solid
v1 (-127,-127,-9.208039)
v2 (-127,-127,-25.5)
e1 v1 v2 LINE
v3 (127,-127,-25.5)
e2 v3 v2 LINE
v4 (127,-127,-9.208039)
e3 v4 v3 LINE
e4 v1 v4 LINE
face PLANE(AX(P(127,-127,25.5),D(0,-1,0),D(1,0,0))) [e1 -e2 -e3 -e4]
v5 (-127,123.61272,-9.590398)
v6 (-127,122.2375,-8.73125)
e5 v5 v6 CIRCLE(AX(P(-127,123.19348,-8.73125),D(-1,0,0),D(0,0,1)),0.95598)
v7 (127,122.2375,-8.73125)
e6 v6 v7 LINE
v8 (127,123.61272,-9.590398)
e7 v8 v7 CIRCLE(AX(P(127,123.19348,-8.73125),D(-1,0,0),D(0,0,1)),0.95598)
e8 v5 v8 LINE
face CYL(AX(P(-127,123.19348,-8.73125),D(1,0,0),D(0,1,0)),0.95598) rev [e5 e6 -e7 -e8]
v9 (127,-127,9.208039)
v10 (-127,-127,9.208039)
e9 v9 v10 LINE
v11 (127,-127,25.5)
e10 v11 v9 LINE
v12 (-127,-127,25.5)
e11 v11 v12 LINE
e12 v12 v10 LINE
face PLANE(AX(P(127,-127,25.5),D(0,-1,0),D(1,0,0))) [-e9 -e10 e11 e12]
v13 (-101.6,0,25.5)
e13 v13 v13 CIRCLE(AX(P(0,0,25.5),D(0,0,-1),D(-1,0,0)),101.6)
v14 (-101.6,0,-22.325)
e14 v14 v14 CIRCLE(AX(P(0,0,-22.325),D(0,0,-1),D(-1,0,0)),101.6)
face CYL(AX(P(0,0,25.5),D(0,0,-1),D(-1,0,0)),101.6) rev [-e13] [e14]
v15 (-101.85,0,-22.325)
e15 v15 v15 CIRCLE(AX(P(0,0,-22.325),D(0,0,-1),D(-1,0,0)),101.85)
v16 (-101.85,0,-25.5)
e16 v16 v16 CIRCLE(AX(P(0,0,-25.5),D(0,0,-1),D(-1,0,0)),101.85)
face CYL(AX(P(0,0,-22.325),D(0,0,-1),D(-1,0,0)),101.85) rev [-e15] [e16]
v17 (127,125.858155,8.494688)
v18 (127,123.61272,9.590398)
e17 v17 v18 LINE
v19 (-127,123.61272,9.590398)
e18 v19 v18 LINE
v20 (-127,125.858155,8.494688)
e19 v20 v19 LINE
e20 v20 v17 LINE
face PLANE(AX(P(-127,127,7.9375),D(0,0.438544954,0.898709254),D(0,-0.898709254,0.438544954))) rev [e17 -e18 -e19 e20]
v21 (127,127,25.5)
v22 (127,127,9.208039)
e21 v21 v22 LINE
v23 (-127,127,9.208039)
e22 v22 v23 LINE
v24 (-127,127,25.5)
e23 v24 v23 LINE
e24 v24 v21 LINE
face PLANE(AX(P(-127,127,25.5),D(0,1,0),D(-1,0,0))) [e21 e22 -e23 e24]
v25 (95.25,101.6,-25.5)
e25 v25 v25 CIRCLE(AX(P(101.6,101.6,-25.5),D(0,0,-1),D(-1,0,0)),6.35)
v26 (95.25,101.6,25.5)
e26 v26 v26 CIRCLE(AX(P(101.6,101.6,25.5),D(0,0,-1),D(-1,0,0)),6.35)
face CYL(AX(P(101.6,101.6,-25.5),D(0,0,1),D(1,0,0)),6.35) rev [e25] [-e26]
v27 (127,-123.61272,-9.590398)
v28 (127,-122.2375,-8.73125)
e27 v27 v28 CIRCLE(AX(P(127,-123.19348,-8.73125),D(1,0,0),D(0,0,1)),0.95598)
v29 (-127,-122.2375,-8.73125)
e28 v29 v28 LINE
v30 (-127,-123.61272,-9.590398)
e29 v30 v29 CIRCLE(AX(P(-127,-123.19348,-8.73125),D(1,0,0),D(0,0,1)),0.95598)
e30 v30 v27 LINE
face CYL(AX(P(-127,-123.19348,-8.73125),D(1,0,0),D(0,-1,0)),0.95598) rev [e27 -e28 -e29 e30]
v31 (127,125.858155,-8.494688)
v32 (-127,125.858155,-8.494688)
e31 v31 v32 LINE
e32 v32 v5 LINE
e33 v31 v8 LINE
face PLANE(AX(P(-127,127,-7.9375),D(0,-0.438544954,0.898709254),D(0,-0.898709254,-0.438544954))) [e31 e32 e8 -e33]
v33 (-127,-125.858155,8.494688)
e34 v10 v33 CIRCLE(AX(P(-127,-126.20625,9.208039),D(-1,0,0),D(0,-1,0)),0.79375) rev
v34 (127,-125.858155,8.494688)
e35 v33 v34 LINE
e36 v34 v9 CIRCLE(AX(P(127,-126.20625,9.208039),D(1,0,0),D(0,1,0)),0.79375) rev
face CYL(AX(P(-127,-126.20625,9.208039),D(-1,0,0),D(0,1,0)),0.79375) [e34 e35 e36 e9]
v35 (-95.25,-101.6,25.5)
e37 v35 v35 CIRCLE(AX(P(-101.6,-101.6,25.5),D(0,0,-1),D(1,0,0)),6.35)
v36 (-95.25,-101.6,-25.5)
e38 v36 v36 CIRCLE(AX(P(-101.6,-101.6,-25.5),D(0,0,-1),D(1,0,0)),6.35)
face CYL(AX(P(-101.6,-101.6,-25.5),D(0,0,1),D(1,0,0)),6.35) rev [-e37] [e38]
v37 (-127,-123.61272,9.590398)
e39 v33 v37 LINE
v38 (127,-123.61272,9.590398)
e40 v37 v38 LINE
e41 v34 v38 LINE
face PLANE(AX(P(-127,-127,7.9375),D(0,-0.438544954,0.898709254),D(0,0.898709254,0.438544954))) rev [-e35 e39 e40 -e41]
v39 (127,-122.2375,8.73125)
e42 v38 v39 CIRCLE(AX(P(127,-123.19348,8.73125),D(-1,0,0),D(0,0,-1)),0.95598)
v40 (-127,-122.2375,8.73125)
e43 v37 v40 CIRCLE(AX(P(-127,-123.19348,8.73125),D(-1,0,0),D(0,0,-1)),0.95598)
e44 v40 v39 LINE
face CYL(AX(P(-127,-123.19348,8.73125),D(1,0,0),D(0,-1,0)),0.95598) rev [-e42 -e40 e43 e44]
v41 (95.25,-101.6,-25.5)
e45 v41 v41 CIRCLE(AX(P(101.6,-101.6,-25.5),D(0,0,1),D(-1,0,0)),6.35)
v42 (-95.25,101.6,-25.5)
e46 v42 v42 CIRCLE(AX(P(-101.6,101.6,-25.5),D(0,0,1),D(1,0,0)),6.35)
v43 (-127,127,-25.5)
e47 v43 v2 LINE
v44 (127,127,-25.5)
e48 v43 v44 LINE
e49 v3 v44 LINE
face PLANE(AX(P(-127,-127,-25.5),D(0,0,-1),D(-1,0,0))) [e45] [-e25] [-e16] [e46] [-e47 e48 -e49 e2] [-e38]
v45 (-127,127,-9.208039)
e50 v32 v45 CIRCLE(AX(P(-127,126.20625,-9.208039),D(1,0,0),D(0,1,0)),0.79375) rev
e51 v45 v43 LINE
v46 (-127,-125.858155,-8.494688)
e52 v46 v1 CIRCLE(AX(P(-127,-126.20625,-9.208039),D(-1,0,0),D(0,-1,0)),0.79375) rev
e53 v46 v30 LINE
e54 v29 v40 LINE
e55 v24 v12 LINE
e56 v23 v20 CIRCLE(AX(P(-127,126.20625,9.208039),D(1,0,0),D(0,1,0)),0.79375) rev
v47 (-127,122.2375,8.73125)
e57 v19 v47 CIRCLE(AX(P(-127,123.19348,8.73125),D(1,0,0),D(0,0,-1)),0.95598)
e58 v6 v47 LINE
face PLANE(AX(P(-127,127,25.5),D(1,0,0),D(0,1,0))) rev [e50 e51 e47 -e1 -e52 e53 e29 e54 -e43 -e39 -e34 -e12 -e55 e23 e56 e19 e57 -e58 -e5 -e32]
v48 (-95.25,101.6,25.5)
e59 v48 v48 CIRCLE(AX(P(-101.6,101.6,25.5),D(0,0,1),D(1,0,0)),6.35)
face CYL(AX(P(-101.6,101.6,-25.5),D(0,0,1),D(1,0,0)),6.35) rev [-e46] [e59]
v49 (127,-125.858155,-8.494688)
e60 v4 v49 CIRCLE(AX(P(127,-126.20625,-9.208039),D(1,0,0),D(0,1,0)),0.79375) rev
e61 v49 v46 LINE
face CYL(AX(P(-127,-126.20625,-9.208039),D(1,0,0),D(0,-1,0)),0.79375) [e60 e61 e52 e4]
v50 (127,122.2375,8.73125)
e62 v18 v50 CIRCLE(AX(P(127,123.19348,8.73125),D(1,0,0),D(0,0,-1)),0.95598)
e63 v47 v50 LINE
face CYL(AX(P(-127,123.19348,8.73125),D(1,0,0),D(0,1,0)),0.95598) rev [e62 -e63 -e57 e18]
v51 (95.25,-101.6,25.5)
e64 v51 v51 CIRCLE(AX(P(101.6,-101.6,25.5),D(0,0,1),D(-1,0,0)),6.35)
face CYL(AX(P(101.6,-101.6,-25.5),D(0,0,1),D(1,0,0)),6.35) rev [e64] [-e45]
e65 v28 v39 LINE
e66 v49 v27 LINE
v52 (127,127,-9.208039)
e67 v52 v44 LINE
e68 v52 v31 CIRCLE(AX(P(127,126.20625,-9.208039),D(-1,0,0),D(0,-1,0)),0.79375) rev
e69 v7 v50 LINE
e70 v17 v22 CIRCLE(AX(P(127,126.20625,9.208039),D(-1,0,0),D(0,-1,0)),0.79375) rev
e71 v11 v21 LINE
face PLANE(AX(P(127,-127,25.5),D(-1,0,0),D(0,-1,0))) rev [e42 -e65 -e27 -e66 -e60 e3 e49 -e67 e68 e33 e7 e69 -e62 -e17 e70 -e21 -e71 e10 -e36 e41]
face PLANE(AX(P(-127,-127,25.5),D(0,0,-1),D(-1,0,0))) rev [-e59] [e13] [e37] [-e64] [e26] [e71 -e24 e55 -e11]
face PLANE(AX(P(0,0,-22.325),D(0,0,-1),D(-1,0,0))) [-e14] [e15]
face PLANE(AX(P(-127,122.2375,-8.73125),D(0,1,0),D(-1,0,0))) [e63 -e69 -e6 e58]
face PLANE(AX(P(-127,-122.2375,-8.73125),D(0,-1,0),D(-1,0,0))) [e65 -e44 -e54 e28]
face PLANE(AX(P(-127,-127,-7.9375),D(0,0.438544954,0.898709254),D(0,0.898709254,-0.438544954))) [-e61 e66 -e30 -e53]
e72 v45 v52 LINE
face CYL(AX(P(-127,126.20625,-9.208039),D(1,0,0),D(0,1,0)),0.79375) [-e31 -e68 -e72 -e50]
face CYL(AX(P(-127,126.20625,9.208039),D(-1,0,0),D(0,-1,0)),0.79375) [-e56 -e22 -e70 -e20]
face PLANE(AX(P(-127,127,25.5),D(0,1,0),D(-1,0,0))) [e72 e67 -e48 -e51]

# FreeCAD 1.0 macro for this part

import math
import FreeCAD as App
import Part
import Sketcher
from FreeCAD import Vector
Q = App.Units.Quantity


def edges_at(feature, points):
    """Names of the edges that pass closest to the given points."""
    edges = feature.Shape.Edges
    near = lambda p: min(range(len(edges)), key=lambda i: edges[i].distToShape(Part.Vertex(*p))[0])
    return sorted({f"Edge{near(p) + 1}" for p in points})

doc = App.newDocument("Part")
body = doc.addObject("PartDesign::Body", "Body")

# Sketch on XY plane
sketch1 = doc.addObject("Sketcher::SketchObject", "Sketch")
body.addObject(sketch1)
sketch1.AttachmentSupport = (doc.XY_Plane, [""])
sketch1.MapMode = "FlatFace"
sketch1.addGeometry([
    Part.LineSegment(Vector(-127, 127, 0), Vector(-127, -127, 0)),
    Part.LineSegment(Vector(-127, -127, 0), Vector(127, -127, 0)),
    Part.LineSegment(Vector(127, -127, 0), Vector(127, 127, 0)),
    Part.LineSegment(Vector(127, 127, 0), Vector(-127, 127, 0)),
], False)
sketch1.addConstraint([
    Sketcher.Constraint("Coincident", 0, 2, 1, 1),
    Sketcher.Constraint("Coincident", 1, 2, 2, 1),
    Sketcher.Constraint("Coincident", 2, 2, 3, 1),
    Sketcher.Constraint("Coincident", 3, 2, 0, 1),
    Sketcher.Constraint("Vertical", 0),
    Sketcher.Constraint("Horizontal", 1),
    Sketcher.Constraint("Vertical", 2),
    Sketcher.Constraint("Horizontal", 3),
    Sketcher.Constraint("Symmetric", 0, 2, 2, 2, -1, 1),
    Sketcher.Constraint("Equal", 3, 0),
    Sketcher.Constraint("DistanceX", 1, 1, 1, 2, Q("10 in")),
])
pad1 = doc.addObject("PartDesign::Pad", "Pad")
body.addObject(pad1)
pad1.Profile = sketch1
pad1.Length = 51
pad1.Midplane = True

# Sketch on YZ plane
sketch2 = doc.addObject("Sketcher::SketchObject", "Sketch001")
body.addObject(sketch2)
sketch2.AttachmentSupport = (doc.YZ_Plane, [""])
sketch2.MapMode = "FlatFace"
sketch2.AttachmentOffset = App.Placement(Vector(0, 0, 5 * 25.4), App.Rotation())
sketch2.addGeometry([
    Part.LineSegment(Vector(127, -7.9375, 0), Vector(127, 7.9375, 0)),  # 0
    Part.LineSegment(Vector(127, 7.9375, 0), Vector(123.61272, 9.590398, 0)),  # 1
    Part.ArcOfCircle(Part.Circle(Vector(123.19348, 8.73125, 0), Vector(0, 0, 1), 0.95598), math.radians(63.98892), math.radians(180)),  # 2
    Part.LineSegment(Vector(122.2375, 8.73125, 0), Vector(122.2375, -8.73125, 0)),  # 3
    Part.ArcOfCircle(Part.Circle(Vector(123.19348, -8.73125, 0), Vector(0, 0, 1), 0.95598), math.radians(180), math.radians(296.01108)),  # 4
    Part.LineSegment(Vector(123.61272, -9.590398, 0), Vector(127, -7.9375, 0)),  # 5
], False)
sketch2.addConstraint([
    Sketcher.Constraint("Coincident", 0, 2, 1, 1),
    Sketcher.Constraint("Tangent", 1, 2, 2, 1),
    Sketcher.Constraint("Tangent", 2, 2, 3, 1),
    Sketcher.Constraint("Tangent", 3, 2, 4, 1),
    Sketcher.Constraint("Tangent", 4, 2, 5, 1),
    Sketcher.Constraint("Coincident", 5, 2, 0, 1),
    Sketcher.Constraint("Vertical", 0),
    Sketcher.Constraint("Vertical", 3),
    Sketcher.Constraint("Equal", 2, 4),
    Sketcher.Constraint("Symmetric", 1, 2, 4, 2, -1),
    Sketcher.Constraint("DistanceX", -1, 1, 0, 2, Q("5 in")),
    Sketcher.Constraint("DistanceY", 0, 1, 0, 2, Q("0.625 in")),
    Sketcher.Constraint("DistanceY", 3, 2, 3, 1, Q("0.6875 in")),
    Sketcher.Constraint("DistanceX", -1, 1, 2, 2, Q("4.8125 in")),
    Sketcher.Constraint("Radius", 2, Q("0.95598 mm")),
])

# Sketch on XY plane
sketch3 = doc.addObject("Sketcher::SketchObject", "Sketch002")
body.addObject(sketch3)
sketch3.AttachmentSupport = (doc.XY_Plane, [""])
sketch3.MapMode = "FlatFace"
sketch3.addGeometry(Part.LineSegment(Vector(127, 127, 0), Vector(-127, 127, 0)), False)
sketch3.addConstraint([
    Sketcher.Constraint("Horizontal", 0),
    Sketcher.Constraint("DistanceX", 0, 2, 0, 1, Q("10 in")),
    Sketcher.Constraint("DistanceX", -1, 1, 0, 1, Q("5 in")),
    Sketcher.Constraint("DistanceY", -1, 1, 0, 1, Q("5 in")),
])
doc.recompute()

subtractivepipe = doc.addObject("PartDesign::SubtractivePipe", "SubtractivePipe")
body.addObject(subtractivepipe)
subtractivepipe.Profile = sketch2
subtractivepipe.Spine = (sketch3, ["Edge1"])
doc.recompute()

fillet = doc.addObject("PartDesign::Fillet", "Fillet")
body.addObject(fillet)
fillet.Base = (subtractivepipe, edges_at(subtractivepipe, [(0, 127, 7.938), (0, 127, -7.938)]))
fillet.Radius = Q("0.03125 in")
doc.recompute()

mirrored = doc.addObject("PartDesign::Mirrored", "Mirrored")
body.addObject(mirrored)
mirrored.Originals = [subtractivepipe]
mirrored.MirrorPlane = (doc.XZ_Plane, [""])
body.Tip = mirrored
doc.recompute()

fillet2 = doc.addObject("PartDesign::Fillet", "Fillet001")
body.addObject(fillet2)
fillet2.Base = (mirrored, edges_at(mirrored, [(0, -127, 7.938), (0, -127, -7.938)]))
fillet2.Radius = Q("0.03125 in")

# Sketch on XY plane
sketch4 = doc.addObject("Sketcher::SketchObject", "Sketch003")
body.addObject(sketch4)
sketch4.AttachmentSupport = (doc.XY_Plane, [""])
sketch4.MapMode = "FlatFace"
sketch4.AttachmentOffset = App.Placement(Vector(0, 0, 25.5), App.Rotation())
sketch4.addGeometry(Part.Circle(Vector(-101.6, 101.6, 0), Vector(0, 0, 1), 6.35), False)
sketch4.addConstraint([
    Sketcher.Constraint("Diameter", 0, Q("0.5 in")),
    Sketcher.Constraint("DistanceX", 0, 3, -1, 1, Q("4 in")),
    Sketcher.Constraint("DistanceY", -1, 1, 0, 3, Q("4 in")),
])
pocket1 = doc.addObject("PartDesign::Pocket", "Pocket")
body.addObject(pocket1)
pocket1.Profile = sketch4
pocket1.Type = "ThroughAll"
doc.recompute()

mirrored2 = doc.addObject("PartDesign::Mirrored", "Mirrored001")
body.addObject(mirrored2)
mirrored2.Originals = [pocket1]
mirrored2.MirrorPlane = (doc.XZ_Plane, [""])
body.Tip = mirrored2
doc.recompute()

mirrored3 = doc.addObject("PartDesign::Mirrored", "Mirrored002")
body.addObject(mirrored3)
mirrored3.Originals = [pocket1]
mirrored3.MirrorPlane = (doc.YZ_Plane, [""])
body.Tip = mirrored3

# Sketch on XY plane
sketch5 = doc.addObject("Sketcher::SketchObject", "Sketch004")
body.addObject(sketch5)
sketch5.AttachmentSupport = (doc.XY_Plane, [""])
sketch5.MapMode = "FlatFace"
sketch5.AttachmentOffset = App.Placement(Vector(0, 0, 25.5), App.Rotation())
sketch5.addGeometry(Part.Circle(Vector(101.6, -101.6, 0), Vector(0, 0, 1), 6.35), False)
sketch5.addConstraint([
    Sketcher.Constraint("Diameter", 0, Q("0.5 in")),
    Sketcher.Constraint("DistanceX", -1, 1, 0, 3, Q("4 in")),
    Sketcher.Constraint("DistanceY", 0, 3, -1, 1, Q("4 in")),
])
pocket2 = doc.addObject("PartDesign::Pocket", "Pocket001")
body.addObject(pocket2)
pocket2.Profile = sketch5
pocket2.Type = "ThroughAll"

# Sketch on XY plane
sketch6 = doc.addObject("Sketcher::SketchObject", "Sketch005")
body.addObject(sketch6)
sketch6.AttachmentSupport = (doc.XY_Plane, [""])
sketch6.MapMode = "FlatFace"
sketch6.AttachmentOffset = App.Placement(Vector(0, 0, -25.5), App.Rotation())
sketch6.addGeometry([
    Part.Circle(Vector(0, 0, 0), Vector(0, 0, 1), 101.85),
    Part.Circle(Vector(0, 0, 0), Vector(0, 0, 1), 101.6),
], False)
sketch6.addConstraint([
    Sketcher.Constraint("Coincident", 0, 3, -1, 1),
    Sketcher.Constraint("Coincident", 1, 3, -1, 1),
    Sketcher.Constraint("Diameter", 1, Q("8 in")),
    Sketcher.Constraint("Diameter", 0, Q("203.7 mm")),
])
pocket3 = doc.addObject("PartDesign::Pocket", "Pocket002")
body.addObject(pocket3)
pocket3.Profile = sketch6
pocket3.Length = Q("0.125 in")
pocket3.Reversed = True

# Sketch on XY plane
sketch7 = doc.addObject("Sketcher::SketchObject", "Sketch006")
body.addObject(sketch7)
sketch7.AttachmentSupport = (doc.XY_Plane, [""])
sketch7.MapMode = "FlatFace"
sketch7.AttachmentOffset = App.Placement(Vector(0, 0, -25.5), App.Rotation())
sketch7.addGeometry(Part.Circle(Vector(0, 0, 0), Vector(0, 0, 1), 101.6), False)
sketch7.addConstraint([
    Sketcher.Constraint("Coincident", 0, 3, -1, 1),
    Sketcher.Constraint("Diameter", 0, Q("8 in")),
])
pocket4 = doc.addObject("PartDesign::Pocket", "Pocket003")
body.addObject(pocket4)
pocket4.Profile = sketch7
pocket4.Type = "ThroughAll"
pocket4.Reversed = True

doc.recompute()
